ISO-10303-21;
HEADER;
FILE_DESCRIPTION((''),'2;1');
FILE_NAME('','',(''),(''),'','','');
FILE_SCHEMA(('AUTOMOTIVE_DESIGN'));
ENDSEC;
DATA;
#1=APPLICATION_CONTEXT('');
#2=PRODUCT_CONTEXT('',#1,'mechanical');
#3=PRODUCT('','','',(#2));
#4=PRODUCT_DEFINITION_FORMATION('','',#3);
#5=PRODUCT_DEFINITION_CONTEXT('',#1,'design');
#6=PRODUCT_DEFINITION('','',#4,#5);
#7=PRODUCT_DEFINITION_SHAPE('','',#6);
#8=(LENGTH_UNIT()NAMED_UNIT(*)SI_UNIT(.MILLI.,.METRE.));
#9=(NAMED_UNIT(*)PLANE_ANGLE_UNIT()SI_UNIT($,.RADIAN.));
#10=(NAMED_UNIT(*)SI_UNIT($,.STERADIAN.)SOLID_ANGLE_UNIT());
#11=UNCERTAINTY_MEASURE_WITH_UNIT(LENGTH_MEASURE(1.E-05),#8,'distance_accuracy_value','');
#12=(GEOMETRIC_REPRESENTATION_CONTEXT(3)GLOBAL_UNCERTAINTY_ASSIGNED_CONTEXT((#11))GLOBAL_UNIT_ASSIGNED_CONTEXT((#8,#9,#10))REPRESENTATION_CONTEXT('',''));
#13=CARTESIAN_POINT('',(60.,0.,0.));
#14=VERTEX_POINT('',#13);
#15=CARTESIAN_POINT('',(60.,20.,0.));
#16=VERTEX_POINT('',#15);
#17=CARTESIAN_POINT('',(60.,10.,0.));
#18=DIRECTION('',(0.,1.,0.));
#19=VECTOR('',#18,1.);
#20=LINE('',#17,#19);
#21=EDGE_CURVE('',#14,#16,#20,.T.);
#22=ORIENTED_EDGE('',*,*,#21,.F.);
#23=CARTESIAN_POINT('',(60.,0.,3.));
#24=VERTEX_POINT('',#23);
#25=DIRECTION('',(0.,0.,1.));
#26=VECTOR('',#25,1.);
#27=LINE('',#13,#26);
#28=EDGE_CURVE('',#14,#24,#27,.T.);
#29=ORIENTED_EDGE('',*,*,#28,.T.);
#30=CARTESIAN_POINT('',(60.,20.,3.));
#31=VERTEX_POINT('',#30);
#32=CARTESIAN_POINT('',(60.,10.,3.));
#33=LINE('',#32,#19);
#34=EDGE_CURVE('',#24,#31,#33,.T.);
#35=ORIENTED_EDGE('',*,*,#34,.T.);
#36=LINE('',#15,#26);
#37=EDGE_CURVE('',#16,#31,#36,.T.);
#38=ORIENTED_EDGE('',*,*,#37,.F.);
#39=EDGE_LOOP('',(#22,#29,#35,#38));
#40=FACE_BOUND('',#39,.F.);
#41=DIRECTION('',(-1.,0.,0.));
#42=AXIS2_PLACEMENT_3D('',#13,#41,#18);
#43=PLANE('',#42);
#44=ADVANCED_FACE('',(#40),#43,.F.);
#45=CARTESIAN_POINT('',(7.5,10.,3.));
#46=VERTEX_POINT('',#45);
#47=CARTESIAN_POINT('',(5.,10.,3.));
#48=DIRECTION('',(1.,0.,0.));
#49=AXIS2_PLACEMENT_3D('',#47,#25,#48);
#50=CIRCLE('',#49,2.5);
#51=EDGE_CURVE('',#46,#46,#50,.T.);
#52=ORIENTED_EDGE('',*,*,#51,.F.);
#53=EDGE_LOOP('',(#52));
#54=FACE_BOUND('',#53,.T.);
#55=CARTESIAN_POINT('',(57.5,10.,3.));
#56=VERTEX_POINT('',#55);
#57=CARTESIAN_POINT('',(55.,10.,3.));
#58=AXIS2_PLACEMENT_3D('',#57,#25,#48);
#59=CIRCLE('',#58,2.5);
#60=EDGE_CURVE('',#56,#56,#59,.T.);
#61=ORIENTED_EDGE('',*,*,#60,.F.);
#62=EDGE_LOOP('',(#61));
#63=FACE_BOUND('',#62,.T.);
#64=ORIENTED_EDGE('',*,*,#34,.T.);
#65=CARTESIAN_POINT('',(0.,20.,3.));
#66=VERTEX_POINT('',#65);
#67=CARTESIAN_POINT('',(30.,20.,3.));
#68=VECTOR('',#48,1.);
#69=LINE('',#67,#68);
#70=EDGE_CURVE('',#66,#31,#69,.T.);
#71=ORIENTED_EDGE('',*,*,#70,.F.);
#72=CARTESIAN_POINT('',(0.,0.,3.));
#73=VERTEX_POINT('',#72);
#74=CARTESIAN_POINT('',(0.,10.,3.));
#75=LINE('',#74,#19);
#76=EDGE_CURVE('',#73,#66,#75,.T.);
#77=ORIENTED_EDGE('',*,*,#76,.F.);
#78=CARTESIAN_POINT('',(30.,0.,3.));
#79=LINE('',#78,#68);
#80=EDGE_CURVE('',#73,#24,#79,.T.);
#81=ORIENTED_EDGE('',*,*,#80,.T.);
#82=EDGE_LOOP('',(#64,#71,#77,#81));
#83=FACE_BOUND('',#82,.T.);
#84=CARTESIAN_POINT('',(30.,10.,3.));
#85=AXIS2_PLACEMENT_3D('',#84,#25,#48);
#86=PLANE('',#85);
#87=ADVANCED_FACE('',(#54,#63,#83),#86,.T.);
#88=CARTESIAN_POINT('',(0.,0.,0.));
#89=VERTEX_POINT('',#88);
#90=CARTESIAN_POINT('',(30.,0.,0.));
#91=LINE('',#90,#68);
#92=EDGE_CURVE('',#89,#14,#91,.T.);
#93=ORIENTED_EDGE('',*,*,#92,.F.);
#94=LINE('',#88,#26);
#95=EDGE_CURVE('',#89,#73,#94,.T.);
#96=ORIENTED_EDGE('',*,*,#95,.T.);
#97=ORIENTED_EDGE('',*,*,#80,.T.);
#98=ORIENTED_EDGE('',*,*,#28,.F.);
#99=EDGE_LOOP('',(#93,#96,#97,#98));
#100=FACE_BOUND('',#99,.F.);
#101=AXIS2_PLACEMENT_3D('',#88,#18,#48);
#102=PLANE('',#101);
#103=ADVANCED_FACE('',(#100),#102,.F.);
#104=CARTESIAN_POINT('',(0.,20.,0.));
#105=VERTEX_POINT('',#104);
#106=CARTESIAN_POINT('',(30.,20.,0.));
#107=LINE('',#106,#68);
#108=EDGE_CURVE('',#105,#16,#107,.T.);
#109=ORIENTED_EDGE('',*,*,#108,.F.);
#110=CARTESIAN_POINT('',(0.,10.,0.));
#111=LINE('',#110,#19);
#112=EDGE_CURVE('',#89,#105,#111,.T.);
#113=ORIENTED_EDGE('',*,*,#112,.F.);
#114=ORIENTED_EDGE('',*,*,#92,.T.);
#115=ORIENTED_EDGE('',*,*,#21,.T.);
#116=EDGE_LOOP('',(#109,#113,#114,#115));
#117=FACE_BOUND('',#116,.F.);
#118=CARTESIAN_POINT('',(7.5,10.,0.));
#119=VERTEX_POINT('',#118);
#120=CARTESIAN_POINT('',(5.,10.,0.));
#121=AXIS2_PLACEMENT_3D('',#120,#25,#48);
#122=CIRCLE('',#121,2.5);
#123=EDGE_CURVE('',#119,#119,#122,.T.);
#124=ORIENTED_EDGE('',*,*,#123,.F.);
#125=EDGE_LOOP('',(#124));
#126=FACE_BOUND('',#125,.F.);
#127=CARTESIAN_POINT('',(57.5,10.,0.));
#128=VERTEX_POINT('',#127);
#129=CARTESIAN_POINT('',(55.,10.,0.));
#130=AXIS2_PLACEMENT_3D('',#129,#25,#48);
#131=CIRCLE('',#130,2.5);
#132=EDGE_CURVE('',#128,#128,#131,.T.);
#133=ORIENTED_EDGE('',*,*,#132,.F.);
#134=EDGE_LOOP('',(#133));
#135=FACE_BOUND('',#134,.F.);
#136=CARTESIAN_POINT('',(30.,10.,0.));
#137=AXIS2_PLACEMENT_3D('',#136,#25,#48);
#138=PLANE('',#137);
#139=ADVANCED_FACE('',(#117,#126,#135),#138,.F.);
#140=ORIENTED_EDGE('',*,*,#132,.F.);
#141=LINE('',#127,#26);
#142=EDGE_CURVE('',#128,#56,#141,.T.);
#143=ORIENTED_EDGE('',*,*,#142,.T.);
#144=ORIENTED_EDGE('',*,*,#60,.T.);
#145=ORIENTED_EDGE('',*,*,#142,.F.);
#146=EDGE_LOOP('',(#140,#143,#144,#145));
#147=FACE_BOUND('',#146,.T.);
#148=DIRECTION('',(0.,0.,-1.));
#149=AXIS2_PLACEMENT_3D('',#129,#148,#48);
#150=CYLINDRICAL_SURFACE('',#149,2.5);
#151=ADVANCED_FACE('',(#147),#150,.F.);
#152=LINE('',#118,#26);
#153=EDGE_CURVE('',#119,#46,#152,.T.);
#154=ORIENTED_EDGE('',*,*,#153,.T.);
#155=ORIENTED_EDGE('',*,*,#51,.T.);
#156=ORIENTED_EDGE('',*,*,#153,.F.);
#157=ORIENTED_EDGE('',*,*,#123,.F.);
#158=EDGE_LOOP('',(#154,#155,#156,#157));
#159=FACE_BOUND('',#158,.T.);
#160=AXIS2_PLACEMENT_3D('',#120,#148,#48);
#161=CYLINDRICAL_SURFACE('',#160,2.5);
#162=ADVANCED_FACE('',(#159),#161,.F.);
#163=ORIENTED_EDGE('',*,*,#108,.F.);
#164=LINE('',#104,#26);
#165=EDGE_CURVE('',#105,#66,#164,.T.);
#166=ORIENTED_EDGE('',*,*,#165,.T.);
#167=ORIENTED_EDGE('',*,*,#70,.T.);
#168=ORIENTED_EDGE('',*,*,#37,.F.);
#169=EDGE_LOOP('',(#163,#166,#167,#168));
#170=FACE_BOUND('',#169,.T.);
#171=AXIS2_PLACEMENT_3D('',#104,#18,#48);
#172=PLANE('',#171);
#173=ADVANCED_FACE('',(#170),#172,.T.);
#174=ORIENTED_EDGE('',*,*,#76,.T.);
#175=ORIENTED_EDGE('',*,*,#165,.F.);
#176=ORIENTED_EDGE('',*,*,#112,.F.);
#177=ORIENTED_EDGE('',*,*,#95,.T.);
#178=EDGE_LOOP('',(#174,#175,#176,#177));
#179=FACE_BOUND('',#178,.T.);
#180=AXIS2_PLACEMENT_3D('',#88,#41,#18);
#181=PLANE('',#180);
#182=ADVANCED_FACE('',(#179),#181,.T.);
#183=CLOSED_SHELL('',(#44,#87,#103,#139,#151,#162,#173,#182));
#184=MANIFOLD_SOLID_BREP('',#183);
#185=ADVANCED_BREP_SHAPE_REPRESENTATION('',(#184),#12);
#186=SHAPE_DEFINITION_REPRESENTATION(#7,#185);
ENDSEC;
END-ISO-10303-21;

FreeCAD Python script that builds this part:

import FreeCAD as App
import Part
import Sketcher


def add_polygon(sketch, points):
    """Adds a closed chain of lines whose ends are joined by coincident constraints."""
    first, n = sketch.GeometryCount, len(points)
    for a, b in zip(points, points[1:] + points[:1]):
        sketch.addGeometry(Part.LineSegment(App.Vector(*a, 0), App.Vector(*b, 0)), False)
    for i in range(n):
        sketch.addConstraint(Sketcher.Constraint("Coincident", first + i, 2, first + (i + 1) % n, 1))

doc = App.newDocument("Part")
params = doc.addObject("Spreadsheet::Sheet", "Params")
for row, (alias, value) in enumerate([
    ("sketch1_diameter", "5 mm"),
    ("sketch1_width", "60 mm"),
    ("sketch1_height", "20 mm"),
    ("pad1_length", "3 mm"),
], start=1):
    params.set(f"A{row}", alias)
    params.set(f"B{row}", "=" + value)
    params.setAlias(f"B{row}", alias)

body = doc.addObject("PartDesign::Body", "Body")

# Sketch on XY plane
sketch1 = body.newObject("Sketcher::SketchObject", "Sketch")
sketch1.AttachmentSupport = (doc.getObject("XY_Plane"), [""])
sketch1.MapMode = "FlatFace"
add_polygon(sketch1, [(0, 20), (0, 0), (60, 0), (60, 20)])  # lines 0-3
sketch1.addGeometry(Part.Circle(App.Vector(5, 10, 0), App.Vector(0, 0, 1), 2.5), False)  # 4
sketch1.addGeometry(Part.Circle(App.Vector(55, 10, 0), App.Vector(0, 0, 1), 2.5), False)  # 5
sketch1.addConstraint(Sketcher.Constraint("Vertical", 0))
sketch1.addConstraint(Sketcher.Constraint("Horizontal", 1))
sketch1.addConstraint(Sketcher.Constraint("Vertical", 2))
sketch1.addConstraint(Sketcher.Constraint("Horizontal", 3))
sketch1.addConstraint(Sketcher.Constraint("Coincident", 0, 2, -1, 1))
sketch1.addConstraint(Sketcher.Constraint("Equal", 4, 5))
sketch1.addConstraint(Sketcher.Constraint("Horizontal", 4, 3, 5, 3))
sketch1.addConstraint(Sketcher.Constraint("Diameter", 4, 5.0))
sketch1.addConstraint(Sketcher.Constraint("DistanceX", 1, 1, 1, 2, 60.0))
sketch1.addConstraint(Sketcher.Constraint("DistanceY", 0, 2, 0, 1, 20.0))
sketch1.addConstraint(Sketcher.Constraint("DistanceX", -1, 1, 4, 3, 5.0))
sketch1.addConstraint(Sketcher.Constraint("DistanceY", -1, 1, 4, 3, 10.0))
sketch1.addConstraint(Sketcher.Constraint("DistanceX", -1, 1, 5, 3, 55.0))
sketch1.setExpression("Constraints[11]", "Params.sketch1_diameter")
sketch1.setExpression("Constraints[12]", "Params.sketch1_width")
sketch1.setExpression("Constraints[13]", "Params.sketch1_height")
pad1 = body.newObject("PartDesign::Pad", "Pad")
pad1.Profile = sketch1
pad1.setExpression("Length", "Params.pad1_length")

doc.recompute()
